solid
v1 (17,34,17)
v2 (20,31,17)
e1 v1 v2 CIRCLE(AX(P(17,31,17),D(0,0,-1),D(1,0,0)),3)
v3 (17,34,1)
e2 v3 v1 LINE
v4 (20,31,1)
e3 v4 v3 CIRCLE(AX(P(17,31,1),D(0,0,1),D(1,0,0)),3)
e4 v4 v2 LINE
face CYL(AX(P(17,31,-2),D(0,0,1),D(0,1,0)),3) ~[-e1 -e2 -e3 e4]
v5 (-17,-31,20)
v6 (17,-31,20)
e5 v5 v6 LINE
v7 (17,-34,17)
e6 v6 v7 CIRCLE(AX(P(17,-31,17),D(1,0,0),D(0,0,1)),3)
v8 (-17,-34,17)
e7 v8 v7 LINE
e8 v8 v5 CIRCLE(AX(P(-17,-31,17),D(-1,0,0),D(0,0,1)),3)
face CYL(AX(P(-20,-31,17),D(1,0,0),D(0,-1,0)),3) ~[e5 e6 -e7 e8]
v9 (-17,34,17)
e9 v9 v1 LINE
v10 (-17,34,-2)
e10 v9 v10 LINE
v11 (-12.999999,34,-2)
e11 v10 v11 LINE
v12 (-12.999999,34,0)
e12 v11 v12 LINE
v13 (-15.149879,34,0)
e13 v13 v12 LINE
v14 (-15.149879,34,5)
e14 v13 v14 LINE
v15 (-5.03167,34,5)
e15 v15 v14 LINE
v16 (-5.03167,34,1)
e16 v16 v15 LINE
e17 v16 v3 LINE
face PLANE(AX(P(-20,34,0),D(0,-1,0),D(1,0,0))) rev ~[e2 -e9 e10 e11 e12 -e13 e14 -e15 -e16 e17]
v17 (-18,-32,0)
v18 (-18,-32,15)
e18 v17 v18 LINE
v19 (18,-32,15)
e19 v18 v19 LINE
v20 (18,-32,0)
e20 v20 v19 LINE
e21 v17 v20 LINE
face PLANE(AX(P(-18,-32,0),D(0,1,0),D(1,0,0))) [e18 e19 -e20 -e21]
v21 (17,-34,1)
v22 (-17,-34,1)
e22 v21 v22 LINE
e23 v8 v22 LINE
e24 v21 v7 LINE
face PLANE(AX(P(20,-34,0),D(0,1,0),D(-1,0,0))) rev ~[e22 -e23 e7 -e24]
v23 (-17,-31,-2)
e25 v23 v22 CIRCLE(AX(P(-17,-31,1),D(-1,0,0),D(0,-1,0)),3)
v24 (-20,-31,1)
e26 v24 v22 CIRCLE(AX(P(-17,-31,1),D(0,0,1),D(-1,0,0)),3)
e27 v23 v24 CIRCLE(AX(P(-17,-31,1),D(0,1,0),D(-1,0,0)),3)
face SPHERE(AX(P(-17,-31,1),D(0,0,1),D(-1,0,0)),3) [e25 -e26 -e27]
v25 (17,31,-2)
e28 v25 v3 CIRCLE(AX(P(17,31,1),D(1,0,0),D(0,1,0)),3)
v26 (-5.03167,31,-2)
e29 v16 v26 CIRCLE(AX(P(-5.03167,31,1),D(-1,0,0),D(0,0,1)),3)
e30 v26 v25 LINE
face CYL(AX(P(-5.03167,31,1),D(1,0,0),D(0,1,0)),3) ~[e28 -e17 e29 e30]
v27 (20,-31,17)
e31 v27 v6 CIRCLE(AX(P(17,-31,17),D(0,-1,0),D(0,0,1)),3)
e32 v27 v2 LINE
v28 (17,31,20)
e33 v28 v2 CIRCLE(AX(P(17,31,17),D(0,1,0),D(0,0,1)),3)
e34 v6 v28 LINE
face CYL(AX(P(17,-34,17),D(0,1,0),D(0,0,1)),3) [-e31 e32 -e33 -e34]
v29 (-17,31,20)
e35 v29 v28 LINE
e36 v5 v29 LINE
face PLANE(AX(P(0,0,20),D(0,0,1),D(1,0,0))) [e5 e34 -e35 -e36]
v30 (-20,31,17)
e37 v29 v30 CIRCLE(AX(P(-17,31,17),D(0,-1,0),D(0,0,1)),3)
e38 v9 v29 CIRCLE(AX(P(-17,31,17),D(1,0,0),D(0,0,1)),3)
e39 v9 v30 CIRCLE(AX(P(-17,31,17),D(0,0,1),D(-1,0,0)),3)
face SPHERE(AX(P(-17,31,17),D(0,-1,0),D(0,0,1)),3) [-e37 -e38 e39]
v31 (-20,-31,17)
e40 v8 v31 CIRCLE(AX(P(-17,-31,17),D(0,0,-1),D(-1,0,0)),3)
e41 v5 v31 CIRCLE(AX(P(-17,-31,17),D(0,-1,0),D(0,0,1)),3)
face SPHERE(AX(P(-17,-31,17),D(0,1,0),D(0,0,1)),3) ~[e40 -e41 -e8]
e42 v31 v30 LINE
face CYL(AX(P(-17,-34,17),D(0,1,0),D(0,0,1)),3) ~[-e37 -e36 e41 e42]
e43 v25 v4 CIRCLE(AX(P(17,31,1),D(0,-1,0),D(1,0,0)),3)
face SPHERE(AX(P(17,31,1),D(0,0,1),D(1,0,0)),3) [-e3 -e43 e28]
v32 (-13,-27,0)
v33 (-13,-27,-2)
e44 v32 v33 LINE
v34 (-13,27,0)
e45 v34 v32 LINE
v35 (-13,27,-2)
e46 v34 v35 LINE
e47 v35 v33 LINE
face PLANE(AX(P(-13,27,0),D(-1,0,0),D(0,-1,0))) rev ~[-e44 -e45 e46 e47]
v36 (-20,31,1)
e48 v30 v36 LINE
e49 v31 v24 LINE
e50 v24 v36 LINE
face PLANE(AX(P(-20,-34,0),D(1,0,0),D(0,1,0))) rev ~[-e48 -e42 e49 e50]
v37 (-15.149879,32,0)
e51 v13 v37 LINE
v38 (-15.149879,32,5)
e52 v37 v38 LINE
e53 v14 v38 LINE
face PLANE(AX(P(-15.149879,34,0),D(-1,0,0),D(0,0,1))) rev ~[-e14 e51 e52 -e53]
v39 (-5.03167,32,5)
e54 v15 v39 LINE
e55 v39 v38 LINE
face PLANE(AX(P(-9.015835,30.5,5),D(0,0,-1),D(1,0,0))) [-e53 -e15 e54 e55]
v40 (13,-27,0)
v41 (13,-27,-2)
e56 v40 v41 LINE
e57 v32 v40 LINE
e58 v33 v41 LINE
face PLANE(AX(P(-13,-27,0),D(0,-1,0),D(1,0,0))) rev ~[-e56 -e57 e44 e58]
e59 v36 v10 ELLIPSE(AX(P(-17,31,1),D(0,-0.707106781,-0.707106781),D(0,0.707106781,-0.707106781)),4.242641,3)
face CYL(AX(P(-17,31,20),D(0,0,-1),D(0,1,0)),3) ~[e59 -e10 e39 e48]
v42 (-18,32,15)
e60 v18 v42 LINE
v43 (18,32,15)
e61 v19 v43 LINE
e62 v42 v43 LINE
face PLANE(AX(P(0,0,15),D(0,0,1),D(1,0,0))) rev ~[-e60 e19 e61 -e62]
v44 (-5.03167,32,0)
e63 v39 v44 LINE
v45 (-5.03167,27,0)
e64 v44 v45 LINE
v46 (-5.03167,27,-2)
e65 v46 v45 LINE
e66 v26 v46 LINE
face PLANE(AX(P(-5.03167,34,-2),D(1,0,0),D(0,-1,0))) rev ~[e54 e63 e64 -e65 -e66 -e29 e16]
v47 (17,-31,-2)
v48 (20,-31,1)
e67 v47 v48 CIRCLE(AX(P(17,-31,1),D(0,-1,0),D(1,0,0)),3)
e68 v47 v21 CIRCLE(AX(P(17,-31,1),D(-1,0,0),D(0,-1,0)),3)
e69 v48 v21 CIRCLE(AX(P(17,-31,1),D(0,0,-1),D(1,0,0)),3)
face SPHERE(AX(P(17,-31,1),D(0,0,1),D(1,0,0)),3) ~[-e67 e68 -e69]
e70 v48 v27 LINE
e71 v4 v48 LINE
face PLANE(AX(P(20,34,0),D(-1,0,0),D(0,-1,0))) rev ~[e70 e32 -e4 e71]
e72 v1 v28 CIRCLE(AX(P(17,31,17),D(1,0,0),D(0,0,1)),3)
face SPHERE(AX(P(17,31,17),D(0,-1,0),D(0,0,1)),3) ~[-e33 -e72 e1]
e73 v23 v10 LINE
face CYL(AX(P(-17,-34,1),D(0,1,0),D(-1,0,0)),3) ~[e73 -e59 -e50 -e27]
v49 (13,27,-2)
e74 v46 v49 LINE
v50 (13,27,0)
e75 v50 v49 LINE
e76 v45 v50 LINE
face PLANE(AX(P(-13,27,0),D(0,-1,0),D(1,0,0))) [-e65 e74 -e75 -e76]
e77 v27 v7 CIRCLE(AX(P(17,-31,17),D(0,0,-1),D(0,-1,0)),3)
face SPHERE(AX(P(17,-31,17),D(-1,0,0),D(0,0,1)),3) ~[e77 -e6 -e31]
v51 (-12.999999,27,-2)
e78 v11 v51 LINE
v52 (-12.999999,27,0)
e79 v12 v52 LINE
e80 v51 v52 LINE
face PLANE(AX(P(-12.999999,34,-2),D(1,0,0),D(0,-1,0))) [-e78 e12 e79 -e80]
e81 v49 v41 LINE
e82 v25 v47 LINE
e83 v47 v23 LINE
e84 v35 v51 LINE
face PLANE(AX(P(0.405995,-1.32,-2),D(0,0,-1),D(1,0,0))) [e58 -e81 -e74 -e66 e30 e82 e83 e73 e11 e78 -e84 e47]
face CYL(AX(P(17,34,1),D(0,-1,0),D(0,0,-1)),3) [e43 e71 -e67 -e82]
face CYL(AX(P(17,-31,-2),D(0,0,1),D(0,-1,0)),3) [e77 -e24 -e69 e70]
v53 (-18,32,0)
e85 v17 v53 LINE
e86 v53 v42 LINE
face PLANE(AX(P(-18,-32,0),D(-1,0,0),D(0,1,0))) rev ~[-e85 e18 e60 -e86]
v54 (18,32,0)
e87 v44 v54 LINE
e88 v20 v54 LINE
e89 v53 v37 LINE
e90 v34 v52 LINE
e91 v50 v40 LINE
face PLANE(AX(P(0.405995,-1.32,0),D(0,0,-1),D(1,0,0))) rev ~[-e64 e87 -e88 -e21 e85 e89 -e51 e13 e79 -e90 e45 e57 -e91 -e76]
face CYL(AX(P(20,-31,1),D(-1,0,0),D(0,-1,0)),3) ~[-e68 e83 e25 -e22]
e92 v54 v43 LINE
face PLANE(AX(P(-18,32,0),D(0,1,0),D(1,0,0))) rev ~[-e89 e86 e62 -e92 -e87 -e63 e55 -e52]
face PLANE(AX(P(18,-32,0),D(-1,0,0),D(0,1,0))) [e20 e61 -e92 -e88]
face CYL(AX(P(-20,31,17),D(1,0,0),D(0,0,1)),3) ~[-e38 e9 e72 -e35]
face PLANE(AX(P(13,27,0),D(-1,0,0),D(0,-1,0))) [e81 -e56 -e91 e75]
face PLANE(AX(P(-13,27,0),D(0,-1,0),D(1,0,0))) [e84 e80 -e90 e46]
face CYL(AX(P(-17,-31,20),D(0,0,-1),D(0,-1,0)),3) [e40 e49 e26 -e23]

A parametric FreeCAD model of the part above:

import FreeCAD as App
import Part
import Sketcher
from FreeCAD import Vector


def edges_at(feature, points):
    """Names of the edges that pass closest to the given points."""
    edges = feature.Shape.Edges
    near = lambda p: min(range(len(edges)), key=lambda i: edges[i].distToShape(Part.Vertex(*p))[0])
    return sorted({f"Edge{near(p) + 1}" for p in points})

doc = App.newDocument("Part")
body = doc.addObject("PartDesign::Body", "Body")

sketch1 = body.newObject("Sketcher::SketchObject", "Sketch")
sketch1.AttachmentSupport = (doc.getObject("XY_Plane"), [""])
sketch1.MapMode = "FlatFace"
sketch1.addGeometry(Part.LineSegment(Vector(-20, 34, 0), Vector(-20, -34, 0)), False)
sketch1.addGeometry(Part.LineSegment(Vector(-20, -34, 0), Vector(20, -34, 0)), False)
sketch1.addGeometry(Part.LineSegment(Vector(20, -34, 0), Vector(20, 34, 0)), False)
sketch1.addGeometry(Part.LineSegment(Vector(20, 34, 0), Vector(-20, 34, 0)), False)
sketch1.addConstraint(Sketcher.Constraint("Coincident", 0, 2, 1, 1))
sketch1.addConstraint(Sketcher.Constraint("Coincident", 1, 2, 2, 1))
sketch1.addConstraint(Sketcher.Constraint("Coincident", 2, 2, 3, 1))
sketch1.addConstraint(Sketcher.Constraint("Coincident", 3, 2, 0, 1))
sketch1.addConstraint(Sketcher.Constraint("Vertical", 0))
sketch1.addConstraint(Sketcher.Constraint("Horizontal", 1))
sketch1.addConstraint(Sketcher.Constraint("Vertical", 2))
sketch1.addConstraint(Sketcher.Constraint("Horizontal", 3))
sketch1.addConstraint(Sketcher.Constraint("Symmetric", 0, 2, 2, 2, -1, 1))
sketch1.addConstraint(Sketcher.Constraint("DistanceX", 1, 1, 1, 2, 40.0))
sketch1.addConstraint(Sketcher.Constraint("DistanceY", 0, 2, 0, 1, 68.0))
pad1 = body.newObject("PartDesign::Pad", "Pad")
pad1.Profile = sketch1
pad1.Length = 20

sketch2 = body.newObject("Sketcher::SketchObject", "Sketch001")
sketch2.AttachmentSupport = (doc.getObject("XY_Plane"), [""])
sketch2.MapMode = "FlatFace"
sketch2.addGeometry(Part.LineSegment(Vector(-18, 32, 0), Vector(-18, -32, 0)), False)
sketch2.addGeometry(Part.LineSegment(Vector(-18, -32, 0), Vector(18, -32, 0)), False)
sketch2.addGeometry(Part.LineSegment(Vector(18, -32, 0), Vector(18, 32, 0)), False)
sketch2.addGeometry(Part.LineSegment(Vector(18, 32, 0), Vector(-18, 32, 0)), False)
sketch2.addConstraint(Sketcher.Constraint("Coincident", 0, 2, 1, 1))
sketch2.addConstraint(Sketcher.Constraint("Coincident", 1, 2, 2, 1))
sketch2.addConstraint(Sketcher.Constraint("Coincident", 2, 2, 3, 1))
sketch2.addConstraint(Sketcher.Constraint("Coincident", 3, 2, 0, 1))
sketch2.addConstraint(Sketcher.Constraint("Vertical", 0))
sketch2.addConstraint(Sketcher.Constraint("Horizontal", 1))
sketch2.addConstraint(Sketcher.Constraint("Vertical", 2))
sketch2.addConstraint(Sketcher.Constraint("Horizontal", 3))
sketch2.addConstraint(Sketcher.Constraint("Symmetric", 0, 2, 2, 2, -1, 1))
sketch2.addConstraint(Sketcher.Constraint("DistanceX", 1, 1, 1, 2, 36.0))
sketch2.addConstraint(Sketcher.Constraint("DistanceY", 0, 2, 0, 1, 64.0))
pocket1 = body.newObject("PartDesign::Pocket", "Pocket")
pocket1.Profile = sketch2
pocket1.Length = 15
pocket1.Reversed = True

sketch3 = body.newObject("Sketcher::SketchObject", "Sketch002")
sketch3.AttachmentSupport = (doc.getObject("XZ_Plane"), [""])
sketch3.MapMode = "FlatFace"
sketch3.AttachmentOffset = App.Placement(Vector(0, 0, -34), App.Rotation())
sketch3.addGeometry(Part.LineSegment(Vector(-5, 5, 0), Vector(-5, 0, 0)), False)
sketch3.addGeometry(Part.LineSegment(Vector(-5, 0, 0), Vector(-15, 0, 0)), False)
sketch3.addGeometry(Part.LineSegment(Vector(-15, 0, 0), Vector(-15, 5, 0)), False)
sketch3.addGeometry(Part.LineSegment(Vector(-15, 5, 0), Vector(-5, 5, 0)), False)
sketch3.addConstraint(Sketcher.Constraint("Coincident", 0, 2, 1, 1))
sketch3.addConstraint(Sketcher.Constraint("Coincident", 1, 2, 2, 1))
sketch3.addConstraint(Sketcher.Constraint("Coincident", 2, 2, 3, 1))
sketch3.addConstraint(Sketcher.Constraint("Coincident", 3, 2, 0, 1))
sketch3.addConstraint(Sketcher.Constraint("Vertical", 0))
sketch3.addConstraint(Sketcher.Constraint("Horizontal", 1))
sketch3.addConstraint(Sketcher.Constraint("Vertical", 2))
sketch3.addConstraint(Sketcher.Constraint("Horizontal", 3))
sketch3.addConstraint(Sketcher.Constraint("PointOnObject", 0, 2, -1))
sketch3.addConstraint(Sketcher.Constraint("DistanceX", 1, 2, 1, 1, 10.0))
sketch3.addConstraint(Sketcher.Constraint("DistanceY", 0, 2, 0, 1, 5.0))
sketch3.addConstraint(Sketcher.Constraint("DistanceX", 0, 2, -1, 1, 5.149879))
pocket2 = body.newObject("PartDesign::Pocket", "Pocket001")
pocket2.Profile = sketch3
pocket2.Length = 25
pocket2.Reversed = True

sketch4 = body.newObject("Sketcher::SketchObject", "Sketch003")
sketch4.AttachmentSupport = (doc.getObject("XY_Plane"), [""])
sketch4.MapMode = "FlatFace"
sketch4.addGeometry(Part.LineSegment(Vector(20, -34, 0), Vector(-20, -34, 0)), False)
sketch4.addGeometry(Part.LineSegment(Vector(-20, -34, 0), Vector(-20, 34, 0)), False)
sketch4.addGeometry(Part.LineSegment(Vector(-20, 34, 0), Vector(20, 34, 0)), False)
sketch4.addGeometry(Part.LineSegment(Vector(20, 34, 0), Vector(20, -34, 0)), False)
sketch4.addGeometry(Part.LineSegment(Vector(13, 27, 0), Vector(-13, 27, 0)), False)
sketch4.addGeometry(Part.LineSegment(Vector(-13, 27, 0), Vector(-13, -27, 0)), False)
sketch4.addGeometry(Part.LineSegment(Vector(-13, -27, 0), Vector(13, -27, 0)), False)
sketch4.addGeometry(Part.LineSegment(Vector(13, -27, 0), Vector(13, 27, 0)), False)
sketch4.addConstraint(Sketcher.Constraint("Coincident", 0, 2, 1, 1))
sketch4.addConstraint(Sketcher.Constraint("Coincident", 1, 2, 2, 1))
sketch4.addConstraint(Sketcher.Constraint("Coincident", 2, 2, 3, 1))
sketch4.addConstraint(Sketcher.Constraint("Coincident", 3, 2, 0, 1))
sketch4.addConstraint(Sketcher.Constraint("Coincident", 4, 2, 5, 1))
sketch4.addConstraint(Sketcher.Constraint("Coincident", 5, 2, 6, 1))
sketch4.addConstraint(Sketcher.Constraint("Coincident", 6, 2, 7, 1))
sketch4.addConstraint(Sketcher.Constraint("Coincident", 7, 2, 4, 1))
sketch4.addConstraint(Sketcher.Constraint("Horizontal", 0))
sketch4.addConstraint(Sketcher.Constraint("Vertical", 1))
sketch4.addConstraint(Sketcher.Constraint("Horizontal", 2))
sketch4.addConstraint(Sketcher.Constraint("Vertical", 3))
sketch4.addConstraint(Sketcher.Constraint("Horizontal", 4))
sketch4.addConstraint(Sketcher.Constraint("Vertical", 5))
sketch4.addConstraint(Sketcher.Constraint("Horizontal", 6))
sketch4.addConstraint(Sketcher.Constraint("Vertical", 7))
sketch4.addConstraint(Sketcher.Constraint("Symmetric", 0, 2, 2, 2, -1, 1))
sketch4.addConstraint(Sketcher.Constraint("Symmetric", 4, 2, 6, 2, -1, 1))
sketch4.addConstraint(Sketcher.Constraint("DistanceX", 0, 2, 0, 1, 40.0))
sketch4.addConstraint(Sketcher.Constraint("DistanceX", 4, 2, 4, 1, 26.0))
sketch4.addConstraint(Sketcher.Constraint("DistanceY", 1, 1, 1, 2, 68.0))
sketch4.addConstraint(Sketcher.Constraint("DistanceY", 5, 2, 5, 1, 54.0))
pad2 = body.newObject("PartDesign::Pad", "Pad001")
pad2.Profile = sketch4
pad2.Length = 2
pad2.Reversed = True

sketch5 = body.newObject("Sketcher::SketchObject", "Sketch004")
sketch5.AttachmentSupport = (doc.getObject("XY_Plane"), [""])
sketch5.MapMode = "FlatFace"
sketch5.AttachmentOffset = App.Placement(Vector(0, 0, -2), App.Rotation())
sketch5.addGeometry(Part.LineSegment(Vector(-13, 27, 0), Vector(-13, 34, 0)), False)
sketch5.addGeometry(Part.LineSegment(Vector(-13, 34, 0), Vector(-5, 34, 0)), False)
sketch5.addGeometry(Part.LineSegment(Vector(-5, 34, 0), Vector(-5, 27, 0)), False)
sketch5.addGeometry(Part.LineSegment(Vector(-5, 27, 0), Vector(-13, 27, 0)), False)
sketch5.addConstraint(Sketcher.Constraint("Coincident", 0, 2, 1, 1))
sketch5.addConstraint(Sketcher.Constraint("Coincident", 1, 2, 2, 1))
sketch5.addConstraint(Sketcher.Constraint("Coincident", 2, 2, 3, 1))
sketch5.addConstraint(Sketcher.Constraint("Coincident", 3, 2, 0, 1))
sketch5.addConstraint(Sketcher.Constraint("Vertical", 0))
sketch5.addConstraint(Sketcher.Constraint("Horizontal", 1))
sketch5.addConstraint(Sketcher.Constraint("Vertical", 2))
sketch5.addConstraint(Sketcher.Constraint("Horizontal", 3))
sketch5.addConstraint(Sketcher.Constraint("DistanceY", 0, 1, 0, 2, 7.0))
sketch5.addConstraint(Sketcher.Constraint("DistanceX", 0, 2, -1, 1, 12.999999))
sketch5.addConstraint(Sketcher.Constraint("DistanceY", -1, 1, 0, 2, 34.0))
sketch5.addConstraint(Sketcher.Constraint("DistanceX", 1, 1, 1, 2, 7.968329))
pocket3 = body.newObject("PartDesign::Pocket", "Pocket002")
pocket3.Profile = sketch5
pocket3.Length = 7
pocket3.Reversed = True
doc.recompute()

fillet = body.newObject("PartDesign::Fillet", "Fillet")
fillet.Base = (pocket3, edges_at(pocket3, [
    (-20, 0, 20),
    (0, -34, 20),
    (20, 0, 20),
    (0, 34, 20),
    (20, 34, 9),
    (-20, -34, 9),
    (-20, 0, -2),
    (-20, 34, 9),
    (20, -34, 9),
    (20, 0, -2),
    (0, -34, -2),
    (7.484, 34, -2),
]))
fillet.Radius = 3

doc.recompute()
